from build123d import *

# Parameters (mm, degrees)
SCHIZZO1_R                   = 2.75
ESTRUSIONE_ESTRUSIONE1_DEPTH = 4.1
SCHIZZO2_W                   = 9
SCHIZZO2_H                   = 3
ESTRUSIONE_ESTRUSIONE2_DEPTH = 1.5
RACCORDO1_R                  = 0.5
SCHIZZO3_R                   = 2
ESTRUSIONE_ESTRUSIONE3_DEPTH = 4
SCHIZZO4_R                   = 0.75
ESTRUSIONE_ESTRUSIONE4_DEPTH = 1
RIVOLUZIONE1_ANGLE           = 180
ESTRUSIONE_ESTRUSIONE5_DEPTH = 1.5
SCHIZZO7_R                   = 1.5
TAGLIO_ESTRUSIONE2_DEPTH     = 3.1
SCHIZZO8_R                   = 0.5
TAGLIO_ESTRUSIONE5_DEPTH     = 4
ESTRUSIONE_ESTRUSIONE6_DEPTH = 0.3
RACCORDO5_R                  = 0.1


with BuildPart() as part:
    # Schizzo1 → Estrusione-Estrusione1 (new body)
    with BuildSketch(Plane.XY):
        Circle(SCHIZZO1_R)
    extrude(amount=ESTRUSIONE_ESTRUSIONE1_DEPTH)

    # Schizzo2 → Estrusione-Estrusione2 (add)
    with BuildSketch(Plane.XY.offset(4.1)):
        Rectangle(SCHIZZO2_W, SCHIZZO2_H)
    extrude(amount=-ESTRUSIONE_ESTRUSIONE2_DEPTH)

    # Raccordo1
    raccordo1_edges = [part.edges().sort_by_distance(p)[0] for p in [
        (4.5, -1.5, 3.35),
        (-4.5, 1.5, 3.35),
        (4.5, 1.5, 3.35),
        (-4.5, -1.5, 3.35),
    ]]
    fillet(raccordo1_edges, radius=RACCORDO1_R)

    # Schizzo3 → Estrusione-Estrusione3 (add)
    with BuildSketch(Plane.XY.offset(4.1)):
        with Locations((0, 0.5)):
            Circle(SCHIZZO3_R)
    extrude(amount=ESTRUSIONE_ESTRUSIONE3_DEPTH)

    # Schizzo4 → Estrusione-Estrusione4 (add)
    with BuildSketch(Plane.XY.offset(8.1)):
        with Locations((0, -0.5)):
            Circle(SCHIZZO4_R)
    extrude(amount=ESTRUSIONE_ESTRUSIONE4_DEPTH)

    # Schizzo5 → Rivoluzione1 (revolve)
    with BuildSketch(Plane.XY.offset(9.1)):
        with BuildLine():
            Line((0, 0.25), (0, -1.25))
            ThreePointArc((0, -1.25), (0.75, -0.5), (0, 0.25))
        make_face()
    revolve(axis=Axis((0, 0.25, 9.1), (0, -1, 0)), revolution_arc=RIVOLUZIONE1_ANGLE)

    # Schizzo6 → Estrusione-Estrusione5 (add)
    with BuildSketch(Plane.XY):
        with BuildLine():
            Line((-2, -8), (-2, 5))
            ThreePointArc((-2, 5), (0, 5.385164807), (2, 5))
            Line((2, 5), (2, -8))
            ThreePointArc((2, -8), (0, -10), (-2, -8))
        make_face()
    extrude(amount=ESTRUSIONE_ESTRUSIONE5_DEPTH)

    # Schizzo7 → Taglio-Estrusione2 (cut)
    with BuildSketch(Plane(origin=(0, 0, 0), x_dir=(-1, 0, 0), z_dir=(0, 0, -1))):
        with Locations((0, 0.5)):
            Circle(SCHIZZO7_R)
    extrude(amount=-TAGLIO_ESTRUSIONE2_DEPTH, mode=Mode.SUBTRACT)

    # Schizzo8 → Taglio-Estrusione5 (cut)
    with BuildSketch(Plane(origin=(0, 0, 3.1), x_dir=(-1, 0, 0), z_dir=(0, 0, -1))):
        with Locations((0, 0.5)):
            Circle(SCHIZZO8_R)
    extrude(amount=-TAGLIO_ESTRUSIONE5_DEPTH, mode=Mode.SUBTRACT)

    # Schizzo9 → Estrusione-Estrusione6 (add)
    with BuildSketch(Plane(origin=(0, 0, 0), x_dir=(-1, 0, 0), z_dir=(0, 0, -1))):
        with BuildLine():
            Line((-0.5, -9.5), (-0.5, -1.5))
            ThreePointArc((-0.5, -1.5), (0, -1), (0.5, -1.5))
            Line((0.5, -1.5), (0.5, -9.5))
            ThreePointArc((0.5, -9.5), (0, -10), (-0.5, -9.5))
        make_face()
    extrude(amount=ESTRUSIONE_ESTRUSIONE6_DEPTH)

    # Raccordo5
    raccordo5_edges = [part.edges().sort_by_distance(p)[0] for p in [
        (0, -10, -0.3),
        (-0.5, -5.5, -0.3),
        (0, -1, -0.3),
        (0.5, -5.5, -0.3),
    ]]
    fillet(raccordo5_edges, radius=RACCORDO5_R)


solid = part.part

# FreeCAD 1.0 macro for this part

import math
import FreeCAD as App
import Part
import Sketcher
from FreeCAD import Vector


def edges_at(feature, points):
    """Names of the edges that pass closest to the given points."""
    edges = feature.Shape.Edges
    near = lambda p: min(range(len(edges)), key=lambda i: edges[i].distToShape(Part.Vertex(*p))[0])
    return sorted({f"Edge{near(p) + 1}" for p in points})


def add_polygon(sketch, points):
    """Adds a closed chain of lines whose ends are joined by coincident constraints."""
    first, n = sketch.GeometryCount, len(points)
    for a, b in zip(points, points[1:] + points[:1]):
        sketch.addGeometry(Part.LineSegment(App.Vector(*a, 0), App.Vector(*b, 0)), False)
    for i in range(n):
        sketch.addConstraint(Sketcher.Constraint("Coincident", first + i, 2, first + (i + 1) % n, 1))

doc = App.newDocument("Part")
params = doc.addObject("Spreadsheet::Sheet", "Params")
for row, (alias, value) in enumerate([
    ("sketch1_diameter", "5.5 mm"),
    ("pad1_length", "4.1 mm"),
    ("sketch2_width", "9 mm"),
    ("sketch2_height", "3 mm"),
    ("pad2_length", "1.5 mm"),
    ("fillet_radius", "0.5 mm"),
    ("sketch3_diameter", "4 mm"),
    ("pad3_length", "4 mm"),
    ("sketch4_diameter", "1.5 mm"),
    ("pad4_length", "1 mm"),
    ("sketch5_radius", "0.75 mm"),
    ("revolution_angle", "180 deg"),
    ("sketch6_radius", "2 mm"),
    ("sketch6_height", "13 mm"),
    ("pad5_length", "1.5 mm"),
    ("sketch7_diameter", "3 mm"),
    ("pocket1_length", "3.1 mm"),
    ("sketch8_diameter", "1 mm"),
    ("pocket2_length", "4 mm"),
    ("sketch9_radius", "0.5 mm"),
    ("sketch9_height", "8 mm"),
    ("pad6_length", "0.3 mm"),
    ("fillet2_radius", "0.1 mm"),
], start=1):
    params.set(f"A{row}", alias)
    params.set(f"B{row}", "=" + value)
    params.setAlias(f"B{row}", alias)

body = doc.addObject("PartDesign::Body", "Body")

sketch1 = body.newObject("Sketcher::SketchObject", "Sketch")
sketch1.AttachmentSupport = (doc.getObject("XY_Plane"), [""])
sketch1.MapMode = "FlatFace"
sketch1.addGeometry(Part.Circle(Vector(0, 0, 0), Vector(0, 0, 1), 2.75), False)
sketch1.addConstraint([
    Sketcher.Constraint("Coincident", 0, 3, -1, 1),
    Sketcher.Constraint("Diameter", 0, 5.5),
])
sketch1.setExpression("Constraints[1]", "Params.sketch1_diameter")
pad1 = body.newObject("PartDesign::Pad", "Pad")
pad1.Profile = sketch1
pad1.setExpression("Length", "Params.pad1_length")

sketch2 = body.newObject("Sketcher::SketchObject", "Sketch001")
sketch2.AttachmentSupport = (doc.getObject("XY_Plane"), [""])
sketch2.MapMode = "FlatFace"
sketch2.AttachmentOffset = App.Placement(Vector(0, 0, 4.1), App.Rotation())
add_polygon(sketch2, [(-4.5, 1.5), (-4.5, -1.5), (4.5, -1.5), (4.5, 1.5)])
sketch2.addConstraint([
    Sketcher.Constraint("Vertical", 0),
    Sketcher.Constraint("Horizontal", 1),
    Sketcher.Constraint("Vertical", 2),
    Sketcher.Constraint("Horizontal", 3),
    Sketcher.Constraint("Symmetric", 0, 2, 2, 2, -1, 1),
    Sketcher.Constraint("DistanceX", 1, 1, 1, 2, 9.0),
    Sketcher.Constraint("DistanceY", 0, 2, 0, 1, 3.0),
])
sketch2.setExpression("Constraints[9]", "Params.sketch2_width")
sketch2.setExpression("Constraints[10]", "Params.sketch2_height")
pad2 = body.newObject("PartDesign::Pad", "Pad001")
pad2.Profile = sketch2
pad2.setExpression("Length", "Params.pad2_length")
pad2.Reversed = True
doc.recompute()

fillet = body.newObject("PartDesign::Fillet", "Fillet")
fillet.Base = (pad2, edges_at(pad2, [
    (4.5, -1.5, 3.35),
    (-4.5, 1.5, 3.35),
    (4.5, 1.5, 3.35),
    (-4.5, -1.5, 3.35),
]))
fillet.setExpression("Radius", "Params.fillet_radius")

sketch3 = body.newObject("Sketcher::SketchObject", "Sketch002")
sketch3.AttachmentSupport = (doc.getObject("XY_Plane"), [""])
sketch3.MapMode = "FlatFace"
sketch3.AttachmentOffset = App.Placement(Vector(0, 0, 4.1), App.Rotation())
sketch3.addGeometry(Part.Circle(Vector(0, 0.5, 0), Vector(0, 0, 1), 2), False)
sketch3.addConstraint([
    Sketcher.Constraint("PointOnObject", 0, 3, -2),
    Sketcher.Constraint("Diameter", 0, 4.0),
    Sketcher.Constraint("DistanceY", -1, 1, 0, 3, 0.5),
])
sketch3.setExpression("Constraints[1]", "Params.sketch3_diameter")
pad3 = body.newObject("PartDesign::Pad", "Pad002")
pad3.Profile = sketch3
pad3.setExpression("Length", "Params.pad3_length")

sketch4 = body.newObject("Sketcher::SketchObject", "Sketch003")
sketch4.AttachmentSupport = (doc.getObject("XY_Plane"), [""])
sketch4.MapMode = "FlatFace"
sketch4.AttachmentOffset = App.Placement(Vector(0, 0, 8.1), App.Rotation())
sketch4.addGeometry(Part.Circle(Vector(0, -0.5, 0), Vector(0, 0, 1), 0.75), False)
sketch4.addConstraint([
    Sketcher.Constraint("PointOnObject", 0, 3, -2),
    Sketcher.Constraint("Diameter", 0, 1.5),
    Sketcher.Constraint("DistanceY", 0, 3, -1, 1, 0.5),
])
sketch4.setExpression("Constraints[1]", "Params.sketch4_diameter")
pad4 = body.newObject("PartDesign::Pad", "Pad003")
pad4.Profile = sketch4
pad4.setExpression("Length", "Params.pad4_length")

sketch5 = body.newObject("Sketcher::SketchObject", "Sketch004")
sketch5.AttachmentSupport = (doc.getObject("XY_Plane"), [""])
sketch5.MapMode = "FlatFace"
sketch5.AttachmentOffset = App.Placement(Vector(0, 0, 9.1), App.Rotation())
sketch5.addGeometry([
    Part.LineSegment(Vector(0, 0.25, 0), Vector(0, -1.25, 0)),
    Part.ArcOfCircle(Part.Circle(Vector(0, -0.5, 0), Vector(0, 0, 1), 0.75), math.radians(-90), math.radians(90)),
], False)
sketch5.addConstraint([
    Sketcher.Constraint("Coincident", 0, 1, 1, 2),
    Sketcher.Constraint("Coincident", 1, 1, 0, 2),
    Sketcher.Constraint("Vertical", 0),
    Sketcher.Constraint("PointOnObject", 1, 3, -2),
    Sketcher.Constraint("PointOnObject", 0, 1, -2),
    Sketcher.Constraint("Radius", 1, 0.75),
    Sketcher.Constraint("DistanceY", 1, 3, -1, 1, 0.5),
])
sketch5.setExpression("Constraints[5]", "Params.sketch5_radius")
revolution = body.newObject("PartDesign::Revolution", "Revolution")
revolution.Profile = sketch5
revolution.ReferenceAxis = (sketch5, ["V_Axis"])
revolution.setExpression("Angle", "Params.revolution_angle")
revolution.Reversed = True

sketch6 = body.newObject("Sketcher::SketchObject", "Sketch005")
sketch6.AttachmentSupport = (doc.getObject("XY_Plane"), [""])
sketch6.MapMode = "FlatFace"
sketch6.addGeometry([
    Part.LineSegment(Vector(-2, 5, 0), Vector(-2, -8, 0)),
    Part.ArcOfCircle(Part.Circle(Vector(0, -8, 0), Vector(0, 0, 1), 2), math.radians(180), math.radians(360)),
    Part.LineSegment(Vector(2, -8, 0), Vector(2, 5, 0)),
    Part.ArcOfCircle(Part.Circle(Vector(0, 0, 0), Vector(0, 0, 1), 5.385165), math.radians(68.198591), math.radians(111.801409)),
], False)
sketch6.addConstraint([
    Sketcher.Constraint("Tangent", 0, 2, 1, 1),
    Sketcher.Constraint("Tangent", 1, 2, 2, 1),
    Sketcher.Constraint("Coincident", 2, 2, 3, 1),
    Sketcher.Constraint("Coincident", 3, 2, 0, 1),
    Sketcher.Constraint("Vertical", 0),
    Sketcher.Constraint("Vertical", 2),
    Sketcher.Constraint("Coincident", 3, 3, -1, 1),
    Sketcher.Constraint("PointOnObject", 1, 3, -2),
    Sketcher.Constraint("Radius", 1, 2.0),
    Sketcher.Constraint("DistanceY", 0, 2, 0, 1, 13.0),
    Sketcher.Constraint("DistanceY", 1, 3, -1, 1, 8.0),
])
sketch6.setExpression("Constraints[8]", "Params.sketch6_radius")
sketch6.setExpression("Constraints[9]", "Params.sketch6_height")
pad5 = body.newObject("PartDesign::Pad", "Pad004")
pad5.Profile = sketch6
pad5.setExpression("Length", "Params.pad5_length")

sketch7 = body.newObject("Sketcher::SketchObject", "Sketch006")
sketch7.AttachmentSupport = (doc.getObject("XY_Plane"), [""])
sketch7.MapMode = "FlatFace"
sketch7.addGeometry(Part.Circle(Vector(0, 0.5, 0), Vector(0, 0, 1), 1.5), False)
sketch7.addConstraint([
    Sketcher.Constraint("PointOnObject", 0, 3, -2),
    Sketcher.Constraint("Diameter", 0, 3.0),
    Sketcher.Constraint("DistanceY", -1, 1, 0, 3, 0.5),
])
sketch7.setExpression("Constraints[1]", "Params.sketch7_diameter")
pocket1 = body.newObject("PartDesign::Pocket", "Pocket")
pocket1.Profile = sketch7
pocket1.setExpression("Length", "Params.pocket1_length")
pocket1.Reversed = True

sketch8 = body.newObject("Sketcher::SketchObject", "Sketch007")
sketch8.AttachmentSupport = (doc.getObject("XY_Plane"), [""])
sketch8.MapMode = "FlatFace"
sketch8.AttachmentOffset = App.Placement(Vector(0, 0, 3.1), App.Rotation())
sketch8.addGeometry(Part.Circle(Vector(0, 0.5, 0), Vector(0, 0, 1), 0.5), False)
sketch8.addConstraint([
    Sketcher.Constraint("PointOnObject", 0, 3, -2),
    Sketcher.Constraint("Diameter", 0, 1.0),
    Sketcher.Constraint("DistanceY", -1, 1, 0, 3, 0.5),
])
sketch8.setExpression("Constraints[1]", "Params.sketch8_diameter")
pocket2 = body.newObject("PartDesign::Pocket", "Pocket001")
pocket2.Profile = sketch8
pocket2.setExpression("Length", "Params.pocket2_length")
pocket2.Reversed = True

sketch9 = body.newObject("Sketcher::SketchObject", "Sketch008")
sketch9.AttachmentSupport = (doc.getObject("XY_Plane"), [""])
sketch9.MapMode = "FlatFace"
sketch9.addGeometry([
    Part.LineSegment(Vector(0.5, -1.5, 0), Vector(0.5, -9.5, 0)),
    Part.ArcOfCircle(Part.Circle(Vector(0, -9.5, 0), Vector(0, 0, 1), 0.5), math.radians(180), math.radians(360)),
    Part.LineSegment(Vector(-0.5, -9.5, 0), Vector(-0.5, -1.5, 0)),
    Part.ArcOfCircle(Part.Circle(Vector(0, -1.5, 0), Vector(0, 0, 1), 0.5), math.radians(0), math.radians(180)),
], False)
sketch9.addConstraint([
    Sketcher.Constraint("Tangent", 0, 2, 1, 2),
    Sketcher.Constraint("Tangent", 1, 1, 2, 1),
    Sketcher.Constraint("Tangent", 2, 2, 3, 2),
    Sketcher.Constraint("Tangent", 3, 1, 0, 1),
    Sketcher.Constraint("Vertical", 0),
    Sketcher.Constraint("Vertical", 2),
    Sketcher.Constraint("PointOnObject", 1, 3, -2),
    Sketcher.Constraint("Radius", 1, 0.5),
    Sketcher.Constraint("DistanceY", 0, 2, 0, 1, 8.0),
    Sketcher.Constraint("DistanceY", 1, 3, -1, 1, 9.5),
])
sketch9.setExpression("Constraints[7]", "Params.sketch9_radius")
sketch9.setExpression("Constraints[8]", "Params.sketch9_height")
pad6 = body.newObject("PartDesign::Pad", "Pad005")
pad6.Profile = sketch9
pad6.setExpression("Length", "Params.pad6_length")
pad6.Reversed = True
doc.recompute()

fillet2 = body.newObject("PartDesign::Fillet", "Fillet001")
fillet2.Base = (pad6, edges_at(pad6, [
    (0, -10, -0.3),
    (-0.5, -5.5, -0.3),
    (0, -1, -0.3),
    (0.5, -5.5, -0.3),
]))
fillet2.setExpression("Radius", "Params.fillet2_radius")

doc.recompute()
